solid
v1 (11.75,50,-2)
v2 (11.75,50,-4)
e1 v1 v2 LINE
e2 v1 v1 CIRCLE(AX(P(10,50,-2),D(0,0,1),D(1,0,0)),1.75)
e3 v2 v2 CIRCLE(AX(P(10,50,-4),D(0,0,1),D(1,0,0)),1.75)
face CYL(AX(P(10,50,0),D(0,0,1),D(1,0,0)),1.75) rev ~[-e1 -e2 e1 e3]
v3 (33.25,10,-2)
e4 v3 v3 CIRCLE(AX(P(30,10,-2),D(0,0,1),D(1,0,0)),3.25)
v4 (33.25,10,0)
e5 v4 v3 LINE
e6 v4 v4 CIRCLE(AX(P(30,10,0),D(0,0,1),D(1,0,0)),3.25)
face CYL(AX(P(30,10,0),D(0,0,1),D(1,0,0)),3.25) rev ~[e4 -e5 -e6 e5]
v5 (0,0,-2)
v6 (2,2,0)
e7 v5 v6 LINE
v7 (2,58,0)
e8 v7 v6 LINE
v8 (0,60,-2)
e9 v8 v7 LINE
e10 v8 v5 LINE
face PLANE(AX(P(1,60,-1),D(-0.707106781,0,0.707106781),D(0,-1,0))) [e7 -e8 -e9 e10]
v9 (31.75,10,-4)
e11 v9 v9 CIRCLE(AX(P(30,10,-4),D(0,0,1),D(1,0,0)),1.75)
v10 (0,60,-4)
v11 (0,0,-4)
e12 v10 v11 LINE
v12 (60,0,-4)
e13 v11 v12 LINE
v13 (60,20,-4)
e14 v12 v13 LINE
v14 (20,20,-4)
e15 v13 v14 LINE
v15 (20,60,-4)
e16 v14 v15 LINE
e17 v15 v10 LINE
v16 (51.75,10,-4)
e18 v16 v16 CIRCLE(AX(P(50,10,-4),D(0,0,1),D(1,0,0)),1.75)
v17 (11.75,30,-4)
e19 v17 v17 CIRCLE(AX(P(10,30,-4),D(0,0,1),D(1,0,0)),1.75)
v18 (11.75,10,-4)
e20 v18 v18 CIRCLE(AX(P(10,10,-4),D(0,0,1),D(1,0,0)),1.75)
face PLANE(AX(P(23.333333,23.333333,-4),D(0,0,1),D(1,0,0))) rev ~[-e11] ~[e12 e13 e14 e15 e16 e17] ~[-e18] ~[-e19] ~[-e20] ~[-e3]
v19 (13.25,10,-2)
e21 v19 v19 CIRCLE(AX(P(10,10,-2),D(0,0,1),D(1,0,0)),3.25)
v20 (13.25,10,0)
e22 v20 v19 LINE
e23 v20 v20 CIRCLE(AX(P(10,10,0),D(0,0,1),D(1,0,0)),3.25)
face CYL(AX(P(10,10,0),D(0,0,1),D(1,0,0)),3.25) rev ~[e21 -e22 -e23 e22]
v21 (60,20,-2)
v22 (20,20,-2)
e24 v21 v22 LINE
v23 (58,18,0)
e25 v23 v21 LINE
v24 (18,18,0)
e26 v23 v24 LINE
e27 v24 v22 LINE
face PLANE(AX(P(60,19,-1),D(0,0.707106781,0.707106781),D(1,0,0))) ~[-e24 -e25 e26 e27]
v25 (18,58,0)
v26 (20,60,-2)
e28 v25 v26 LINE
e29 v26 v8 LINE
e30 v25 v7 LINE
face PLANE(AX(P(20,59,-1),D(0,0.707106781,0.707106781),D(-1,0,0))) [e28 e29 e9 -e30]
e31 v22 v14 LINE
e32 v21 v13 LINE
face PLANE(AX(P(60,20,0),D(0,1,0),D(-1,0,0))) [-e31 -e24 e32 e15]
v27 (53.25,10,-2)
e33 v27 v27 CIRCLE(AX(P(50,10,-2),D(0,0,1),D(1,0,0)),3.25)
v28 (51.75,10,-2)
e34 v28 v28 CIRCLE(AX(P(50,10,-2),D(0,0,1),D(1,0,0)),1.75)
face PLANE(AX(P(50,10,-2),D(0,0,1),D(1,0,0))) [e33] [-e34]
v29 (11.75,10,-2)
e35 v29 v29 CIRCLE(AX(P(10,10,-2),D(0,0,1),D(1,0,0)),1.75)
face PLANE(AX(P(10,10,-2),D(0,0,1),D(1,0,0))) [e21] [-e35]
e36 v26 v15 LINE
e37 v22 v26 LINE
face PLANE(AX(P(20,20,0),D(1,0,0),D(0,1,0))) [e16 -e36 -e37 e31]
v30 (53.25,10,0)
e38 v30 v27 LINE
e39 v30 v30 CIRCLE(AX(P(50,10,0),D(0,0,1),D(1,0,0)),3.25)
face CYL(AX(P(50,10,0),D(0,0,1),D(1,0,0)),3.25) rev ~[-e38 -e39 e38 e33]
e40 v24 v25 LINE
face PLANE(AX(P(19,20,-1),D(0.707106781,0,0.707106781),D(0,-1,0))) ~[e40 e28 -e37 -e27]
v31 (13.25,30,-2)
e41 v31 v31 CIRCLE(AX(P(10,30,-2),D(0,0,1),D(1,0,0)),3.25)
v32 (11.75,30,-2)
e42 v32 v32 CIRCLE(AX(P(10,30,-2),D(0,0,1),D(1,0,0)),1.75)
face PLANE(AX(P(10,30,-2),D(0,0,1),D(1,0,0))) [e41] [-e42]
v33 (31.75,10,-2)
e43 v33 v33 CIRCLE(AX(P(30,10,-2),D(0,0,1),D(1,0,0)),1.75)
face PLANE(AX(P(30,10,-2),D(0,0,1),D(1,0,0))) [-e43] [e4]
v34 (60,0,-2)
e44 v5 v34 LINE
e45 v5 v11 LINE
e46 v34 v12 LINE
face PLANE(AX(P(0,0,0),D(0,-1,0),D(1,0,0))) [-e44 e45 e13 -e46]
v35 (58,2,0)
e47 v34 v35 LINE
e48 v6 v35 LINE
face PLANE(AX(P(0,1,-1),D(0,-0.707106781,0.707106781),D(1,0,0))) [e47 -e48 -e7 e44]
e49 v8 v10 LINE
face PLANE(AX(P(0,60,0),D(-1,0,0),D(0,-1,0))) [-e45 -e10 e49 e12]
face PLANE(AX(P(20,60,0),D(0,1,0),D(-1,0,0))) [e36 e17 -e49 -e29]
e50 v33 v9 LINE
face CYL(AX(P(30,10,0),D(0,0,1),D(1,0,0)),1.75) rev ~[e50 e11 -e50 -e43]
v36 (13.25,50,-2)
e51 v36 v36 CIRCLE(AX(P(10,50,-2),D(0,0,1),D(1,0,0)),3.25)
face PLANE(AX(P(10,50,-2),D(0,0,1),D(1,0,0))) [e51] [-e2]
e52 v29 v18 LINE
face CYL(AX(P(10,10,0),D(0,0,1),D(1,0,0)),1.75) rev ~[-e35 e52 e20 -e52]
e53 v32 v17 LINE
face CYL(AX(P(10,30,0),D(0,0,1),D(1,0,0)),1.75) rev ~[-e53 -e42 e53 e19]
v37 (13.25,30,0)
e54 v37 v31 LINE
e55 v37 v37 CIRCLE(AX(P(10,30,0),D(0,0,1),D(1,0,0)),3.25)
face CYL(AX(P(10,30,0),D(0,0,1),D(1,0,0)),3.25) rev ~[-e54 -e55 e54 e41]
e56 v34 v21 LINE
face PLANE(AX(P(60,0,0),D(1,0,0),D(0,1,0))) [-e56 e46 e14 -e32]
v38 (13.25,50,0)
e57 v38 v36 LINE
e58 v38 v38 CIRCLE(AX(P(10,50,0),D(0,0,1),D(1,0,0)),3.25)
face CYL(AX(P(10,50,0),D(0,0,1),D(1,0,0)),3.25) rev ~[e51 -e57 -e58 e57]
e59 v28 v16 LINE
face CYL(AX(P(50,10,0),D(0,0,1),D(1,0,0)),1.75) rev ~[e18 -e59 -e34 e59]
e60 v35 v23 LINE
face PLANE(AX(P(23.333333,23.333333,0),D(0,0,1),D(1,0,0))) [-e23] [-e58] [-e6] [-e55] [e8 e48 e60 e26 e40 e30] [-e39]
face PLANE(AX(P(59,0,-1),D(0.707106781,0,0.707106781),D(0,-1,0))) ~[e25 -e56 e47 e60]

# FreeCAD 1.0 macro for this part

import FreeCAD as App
import Part
import Sketcher
from FreeCAD import Vector
Q = App.Units.Quantity


def edges_at(feature, points):
    """Names of the edges that pass closest to the given points."""
    edges = feature.Shape.Edges
    near = lambda p: min(range(len(edges)), key=lambda i: edges[i].distToShape(Part.Vertex(*p))[0])
    return sorted({f"Edge{near(p) + 1}" for p in points})

doc = App.newDocument("Part")
body = doc.addObject("PartDesign::Body", "Body")

# Sketch on XY plane
sketch1 = body.newObject("Sketcher::SketchObject", "Sketch")
sketch1.AttachmentSupport = (doc.getObject("XY_Plane"), [""])
sketch1.MapMode = "FlatFace"
sketch1.addGeometry(Part.LineSegment(Vector(0, 60, 0), Vector(0, 0, 0)), False)
sketch1.addGeometry(Part.LineSegment(Vector(0, 0, 0), Vector(60, 0, 0)), False)
sketch1.addGeometry(Part.LineSegment(Vector(60, 0, 0), Vector(60, 20, 0)), False)
sketch1.addGeometry(Part.LineSegment(Vector(60, 20, 0), Vector(20, 20, 0)), False)
sketch1.addGeometry(Part.LineSegment(Vector(20, 20, 0), Vector(20, 60, 0)), False)
sketch1.addGeometry(Part.LineSegment(Vector(20, 60, 0), Vector(0, 60, 0)), False)
sketch1.addConstraint(Sketcher.Constraint("Coincident", 0, 2, 1, 1))
sketch1.addConstraint(Sketcher.Constraint("Coincident", 1, 2, 2, 1))
sketch1.addConstraint(Sketcher.Constraint("Coincident", 2, 2, 3, 1))
sketch1.addConstraint(Sketcher.Constraint("Coincident", 3, 2, 4, 1))
sketch1.addConstraint(Sketcher.Constraint("Coincident", 4, 2, 5, 1))
sketch1.addConstraint(Sketcher.Constraint("Coincident", 5, 2, 0, 1))
sketch1.addConstraint(Sketcher.Constraint("Vertical", 0))
sketch1.addConstraint(Sketcher.Constraint("Horizontal", 1))
sketch1.addConstraint(Sketcher.Constraint("Vertical", 2))
sketch1.addConstraint(Sketcher.Constraint("Horizontal", 3))
sketch1.addConstraint(Sketcher.Constraint("Vertical", 4))
sketch1.addConstraint(Sketcher.Constraint("Horizontal", 5))
sketch1.addConstraint(Sketcher.Constraint("Coincident", 0, 2, -1, 1))
sketch1.addConstraint(Sketcher.Constraint("Equal", 1, 0))
sketch1.addConstraint(Sketcher.Constraint("Equal", 5, 2))
sketch1.addConstraint(Sketcher.Constraint("DistanceX", 1, 1, 1, 2, Q("60 mm")))
sketch1.addConstraint(Sketcher.Constraint("DistanceX", 3, 2, 3, 1, Q("40 mm")))
pad1 = body.newObject("PartDesign::Pad", "Pad")
pad1.Profile = sketch1
pad1.Length = 4
pad1.Reversed = True

# Sketch on XY plane
sketch2 = body.newObject("Sketcher::SketchObject", "Sketch001")
sketch2.AttachmentSupport = (doc.getObject("XY_Plane"), [""])
sketch2.MapMode = "FlatFace"
sketch2.addGeometry(Part.Circle(Vector(10, 50, 0), Vector(0, 0, 1), 1.75), False)
sketch2.addGeometry(Part.Circle(Vector(10, 30, 0), Vector(0, 0, 1), 1.75), False)
sketch2.addGeometry(Part.Circle(Vector(10, 10, 0), Vector(0, 0, 1), 1.75), False)
sketch2.addGeometry(Part.Circle(Vector(30, 10, 0), Vector(0, 0, 1), 1.75), False)
sketch2.addGeometry(Part.Circle(Vector(50, 10, 0), Vector(0, 0, 1), 1.75), False)
sketch2.addConstraint(Sketcher.Constraint("Equal", 0, 1))
sketch2.addConstraint(Sketcher.Constraint("Equal", 1, 2))
sketch2.addConstraint(Sketcher.Constraint("Equal", 2, 3))
sketch2.addConstraint(Sketcher.Constraint("Equal", 3, 4))
sketch2.addConstraint(Sketcher.Constraint("Horizontal", 2, 3, 3, 3))
sketch2.addConstraint(Sketcher.Constraint("Horizontal", 3, 3, 4, 3))
sketch2.addConstraint(Sketcher.Constraint("Vertical", 0, 3, 1, 3))
sketch2.addConstraint(Sketcher.Constraint("Vertical", 1, 3, 2, 3))
sketch2.addConstraint(Sketcher.Constraint("Diameter", 0, Q("3.5 mm")))
sketch2.addConstraint(Sketcher.Constraint("DistanceX", -1, 1, 0, 3, Q("10 mm")))
sketch2.addConstraint(Sketcher.Constraint("DistanceY", -1, 1, 0, 3, Q("50 mm")))
sketch2.addConstraint(Sketcher.Constraint("DistanceY", -1, 1, 1, 3, Q("30 mm")))
sketch2.addConstraint(Sketcher.Constraint("DistanceY", -1, 1, 2, 3, Q("10 mm")))
sketch2.addConstraint(Sketcher.Constraint("DistanceX", -1, 1, 3, 3, Q("30 mm")))
sketch2.addConstraint(Sketcher.Constraint("DistanceX", -1, 1, 4, 3, Q("50 mm")))
pocket1 = body.newObject("PartDesign::Pocket", "Pocket")
pocket1.Profile = sketch2
pocket1.Type = "ThroughAll"

# Sketch on XY plane
sketch3 = body.newObject("Sketcher::SketchObject", "Sketch002")
sketch3.AttachmentSupport = (doc.getObject("XY_Plane"), [""])
sketch3.MapMode = "FlatFace"
sketch3.addGeometry(Part.Circle(Vector(10, 50, 0), Vector(0, 0, 1), 3.25), False)
sketch3.addGeometry(Part.Circle(Vector(10, 50, 0), Vector(0, 0, 1), 1.75), False)
sketch3.addGeometry(Part.Circle(Vector(10, 30, 0), Vector(0, 0, 1), 3.25), False)
sketch3.addGeometry(Part.Circle(Vector(10, 30, 0), Vector(0, 0, 1), 1.75), False)
sketch3.addGeometry(Part.Circle(Vector(10, 10, 0), Vector(0, 0, 1), 3.25), False)
sketch3.addGeometry(Part.Circle(Vector(10, 10, 0), Vector(0, 0, 1), 1.75), False)
sketch3.addGeometry(Part.Circle(Vector(30, 10, 0), Vector(0, 0, 1), 3.25), False)
sketch3.addGeometry(Part.Circle(Vector(30, 10, 0), Vector(0, 0, 1), 1.75), False)
sketch3.addGeometry(Part.Circle(Vector(50, 10, 0), Vector(0, 0, 1), 3.25), False)
sketch3.addGeometry(Part.Circle(Vector(50, 10, 0), Vector(0, 0, 1), 1.75), False)
sketch3.addConstraint(Sketcher.Constraint("Coincident", 1, 3, 0, 3))
sketch3.addConstraint(Sketcher.Constraint("Coincident", 3, 3, 2, 3))
sketch3.addConstraint(Sketcher.Constraint("Coincident", 5, 3, 4, 3))
sketch3.addConstraint(Sketcher.Constraint("Coincident", 7, 3, 6, 3))
sketch3.addConstraint(Sketcher.Constraint("Coincident", 9, 3, 8, 3))
sketch3.addConstraint(Sketcher.Constraint("Equal", 0, 2))
sketch3.addConstraint(Sketcher.Constraint("Equal", 1, 3))
sketch3.addConstraint(Sketcher.Constraint("Equal", 2, 4))
sketch3.addConstraint(Sketcher.Constraint("Equal", 3, 5))
sketch3.addConstraint(Sketcher.Constraint("Equal", 4, 6))
sketch3.addConstraint(Sketcher.Constraint("Equal", 5, 7))
sketch3.addConstraint(Sketcher.Constraint("Equal", 6, 8))
sketch3.addConstraint(Sketcher.Constraint("Equal", 7, 9))
sketch3.addConstraint(Sketcher.Constraint("Horizontal", 5, 3, 6, 3))
sketch3.addConstraint(Sketcher.Constraint("Horizontal", 7, 3, 8, 3))
sketch3.addConstraint(Sketcher.Constraint("Vertical", 1, 3, 2, 3))
sketch3.addConstraint(Sketcher.Constraint("Vertical", 3, 3, 4, 3))
sketch3.addConstraint(Sketcher.Constraint("Diameter", 0, Q("6.5 mm")))
sketch3.addConstraint(Sketcher.Constraint("Diameter", 1, Q("3.5 mm")))
sketch3.addConstraint(Sketcher.Constraint("DistanceX", -1, 1, 0, 3, Q("10 mm")))
sketch3.addConstraint(Sketcher.Constraint("DistanceY", -1, 1, 0, 3, Q("50 mm")))
sketch3.addConstraint(Sketcher.Constraint("DistanceY", -1, 1, 2, 3, Q("30 mm")))
sketch3.addConstraint(Sketcher.Constraint("DistanceY", -1, 1, 4, 3, Q("10 mm")))
sketch3.addConstraint(Sketcher.Constraint("DistanceX", -1, 1, 6, 3, Q("30 mm")))
sketch3.addConstraint(Sketcher.Constraint("DistanceX", -1, 1, 8, 3, Q("50 mm")))
pocket2 = body.newObject("PartDesign::Pocket", "Pocket001")
pocket2.Profile = sketch3
pocket2.Length = 2
doc.recompute()

chamfer = body.newObject("PartDesign::Chamfer", "Chamfer")
chamfer.Base = (pocket2, edges_at(pocket2, [
    (40, 20, 0),
    (20, 40, 0),
    (10, 60, 0),
    (0, 30, 0),
    (30, 0, 0),
    (60, 10, 0),
]))
chamfer.Size = 2

doc.recompute()
